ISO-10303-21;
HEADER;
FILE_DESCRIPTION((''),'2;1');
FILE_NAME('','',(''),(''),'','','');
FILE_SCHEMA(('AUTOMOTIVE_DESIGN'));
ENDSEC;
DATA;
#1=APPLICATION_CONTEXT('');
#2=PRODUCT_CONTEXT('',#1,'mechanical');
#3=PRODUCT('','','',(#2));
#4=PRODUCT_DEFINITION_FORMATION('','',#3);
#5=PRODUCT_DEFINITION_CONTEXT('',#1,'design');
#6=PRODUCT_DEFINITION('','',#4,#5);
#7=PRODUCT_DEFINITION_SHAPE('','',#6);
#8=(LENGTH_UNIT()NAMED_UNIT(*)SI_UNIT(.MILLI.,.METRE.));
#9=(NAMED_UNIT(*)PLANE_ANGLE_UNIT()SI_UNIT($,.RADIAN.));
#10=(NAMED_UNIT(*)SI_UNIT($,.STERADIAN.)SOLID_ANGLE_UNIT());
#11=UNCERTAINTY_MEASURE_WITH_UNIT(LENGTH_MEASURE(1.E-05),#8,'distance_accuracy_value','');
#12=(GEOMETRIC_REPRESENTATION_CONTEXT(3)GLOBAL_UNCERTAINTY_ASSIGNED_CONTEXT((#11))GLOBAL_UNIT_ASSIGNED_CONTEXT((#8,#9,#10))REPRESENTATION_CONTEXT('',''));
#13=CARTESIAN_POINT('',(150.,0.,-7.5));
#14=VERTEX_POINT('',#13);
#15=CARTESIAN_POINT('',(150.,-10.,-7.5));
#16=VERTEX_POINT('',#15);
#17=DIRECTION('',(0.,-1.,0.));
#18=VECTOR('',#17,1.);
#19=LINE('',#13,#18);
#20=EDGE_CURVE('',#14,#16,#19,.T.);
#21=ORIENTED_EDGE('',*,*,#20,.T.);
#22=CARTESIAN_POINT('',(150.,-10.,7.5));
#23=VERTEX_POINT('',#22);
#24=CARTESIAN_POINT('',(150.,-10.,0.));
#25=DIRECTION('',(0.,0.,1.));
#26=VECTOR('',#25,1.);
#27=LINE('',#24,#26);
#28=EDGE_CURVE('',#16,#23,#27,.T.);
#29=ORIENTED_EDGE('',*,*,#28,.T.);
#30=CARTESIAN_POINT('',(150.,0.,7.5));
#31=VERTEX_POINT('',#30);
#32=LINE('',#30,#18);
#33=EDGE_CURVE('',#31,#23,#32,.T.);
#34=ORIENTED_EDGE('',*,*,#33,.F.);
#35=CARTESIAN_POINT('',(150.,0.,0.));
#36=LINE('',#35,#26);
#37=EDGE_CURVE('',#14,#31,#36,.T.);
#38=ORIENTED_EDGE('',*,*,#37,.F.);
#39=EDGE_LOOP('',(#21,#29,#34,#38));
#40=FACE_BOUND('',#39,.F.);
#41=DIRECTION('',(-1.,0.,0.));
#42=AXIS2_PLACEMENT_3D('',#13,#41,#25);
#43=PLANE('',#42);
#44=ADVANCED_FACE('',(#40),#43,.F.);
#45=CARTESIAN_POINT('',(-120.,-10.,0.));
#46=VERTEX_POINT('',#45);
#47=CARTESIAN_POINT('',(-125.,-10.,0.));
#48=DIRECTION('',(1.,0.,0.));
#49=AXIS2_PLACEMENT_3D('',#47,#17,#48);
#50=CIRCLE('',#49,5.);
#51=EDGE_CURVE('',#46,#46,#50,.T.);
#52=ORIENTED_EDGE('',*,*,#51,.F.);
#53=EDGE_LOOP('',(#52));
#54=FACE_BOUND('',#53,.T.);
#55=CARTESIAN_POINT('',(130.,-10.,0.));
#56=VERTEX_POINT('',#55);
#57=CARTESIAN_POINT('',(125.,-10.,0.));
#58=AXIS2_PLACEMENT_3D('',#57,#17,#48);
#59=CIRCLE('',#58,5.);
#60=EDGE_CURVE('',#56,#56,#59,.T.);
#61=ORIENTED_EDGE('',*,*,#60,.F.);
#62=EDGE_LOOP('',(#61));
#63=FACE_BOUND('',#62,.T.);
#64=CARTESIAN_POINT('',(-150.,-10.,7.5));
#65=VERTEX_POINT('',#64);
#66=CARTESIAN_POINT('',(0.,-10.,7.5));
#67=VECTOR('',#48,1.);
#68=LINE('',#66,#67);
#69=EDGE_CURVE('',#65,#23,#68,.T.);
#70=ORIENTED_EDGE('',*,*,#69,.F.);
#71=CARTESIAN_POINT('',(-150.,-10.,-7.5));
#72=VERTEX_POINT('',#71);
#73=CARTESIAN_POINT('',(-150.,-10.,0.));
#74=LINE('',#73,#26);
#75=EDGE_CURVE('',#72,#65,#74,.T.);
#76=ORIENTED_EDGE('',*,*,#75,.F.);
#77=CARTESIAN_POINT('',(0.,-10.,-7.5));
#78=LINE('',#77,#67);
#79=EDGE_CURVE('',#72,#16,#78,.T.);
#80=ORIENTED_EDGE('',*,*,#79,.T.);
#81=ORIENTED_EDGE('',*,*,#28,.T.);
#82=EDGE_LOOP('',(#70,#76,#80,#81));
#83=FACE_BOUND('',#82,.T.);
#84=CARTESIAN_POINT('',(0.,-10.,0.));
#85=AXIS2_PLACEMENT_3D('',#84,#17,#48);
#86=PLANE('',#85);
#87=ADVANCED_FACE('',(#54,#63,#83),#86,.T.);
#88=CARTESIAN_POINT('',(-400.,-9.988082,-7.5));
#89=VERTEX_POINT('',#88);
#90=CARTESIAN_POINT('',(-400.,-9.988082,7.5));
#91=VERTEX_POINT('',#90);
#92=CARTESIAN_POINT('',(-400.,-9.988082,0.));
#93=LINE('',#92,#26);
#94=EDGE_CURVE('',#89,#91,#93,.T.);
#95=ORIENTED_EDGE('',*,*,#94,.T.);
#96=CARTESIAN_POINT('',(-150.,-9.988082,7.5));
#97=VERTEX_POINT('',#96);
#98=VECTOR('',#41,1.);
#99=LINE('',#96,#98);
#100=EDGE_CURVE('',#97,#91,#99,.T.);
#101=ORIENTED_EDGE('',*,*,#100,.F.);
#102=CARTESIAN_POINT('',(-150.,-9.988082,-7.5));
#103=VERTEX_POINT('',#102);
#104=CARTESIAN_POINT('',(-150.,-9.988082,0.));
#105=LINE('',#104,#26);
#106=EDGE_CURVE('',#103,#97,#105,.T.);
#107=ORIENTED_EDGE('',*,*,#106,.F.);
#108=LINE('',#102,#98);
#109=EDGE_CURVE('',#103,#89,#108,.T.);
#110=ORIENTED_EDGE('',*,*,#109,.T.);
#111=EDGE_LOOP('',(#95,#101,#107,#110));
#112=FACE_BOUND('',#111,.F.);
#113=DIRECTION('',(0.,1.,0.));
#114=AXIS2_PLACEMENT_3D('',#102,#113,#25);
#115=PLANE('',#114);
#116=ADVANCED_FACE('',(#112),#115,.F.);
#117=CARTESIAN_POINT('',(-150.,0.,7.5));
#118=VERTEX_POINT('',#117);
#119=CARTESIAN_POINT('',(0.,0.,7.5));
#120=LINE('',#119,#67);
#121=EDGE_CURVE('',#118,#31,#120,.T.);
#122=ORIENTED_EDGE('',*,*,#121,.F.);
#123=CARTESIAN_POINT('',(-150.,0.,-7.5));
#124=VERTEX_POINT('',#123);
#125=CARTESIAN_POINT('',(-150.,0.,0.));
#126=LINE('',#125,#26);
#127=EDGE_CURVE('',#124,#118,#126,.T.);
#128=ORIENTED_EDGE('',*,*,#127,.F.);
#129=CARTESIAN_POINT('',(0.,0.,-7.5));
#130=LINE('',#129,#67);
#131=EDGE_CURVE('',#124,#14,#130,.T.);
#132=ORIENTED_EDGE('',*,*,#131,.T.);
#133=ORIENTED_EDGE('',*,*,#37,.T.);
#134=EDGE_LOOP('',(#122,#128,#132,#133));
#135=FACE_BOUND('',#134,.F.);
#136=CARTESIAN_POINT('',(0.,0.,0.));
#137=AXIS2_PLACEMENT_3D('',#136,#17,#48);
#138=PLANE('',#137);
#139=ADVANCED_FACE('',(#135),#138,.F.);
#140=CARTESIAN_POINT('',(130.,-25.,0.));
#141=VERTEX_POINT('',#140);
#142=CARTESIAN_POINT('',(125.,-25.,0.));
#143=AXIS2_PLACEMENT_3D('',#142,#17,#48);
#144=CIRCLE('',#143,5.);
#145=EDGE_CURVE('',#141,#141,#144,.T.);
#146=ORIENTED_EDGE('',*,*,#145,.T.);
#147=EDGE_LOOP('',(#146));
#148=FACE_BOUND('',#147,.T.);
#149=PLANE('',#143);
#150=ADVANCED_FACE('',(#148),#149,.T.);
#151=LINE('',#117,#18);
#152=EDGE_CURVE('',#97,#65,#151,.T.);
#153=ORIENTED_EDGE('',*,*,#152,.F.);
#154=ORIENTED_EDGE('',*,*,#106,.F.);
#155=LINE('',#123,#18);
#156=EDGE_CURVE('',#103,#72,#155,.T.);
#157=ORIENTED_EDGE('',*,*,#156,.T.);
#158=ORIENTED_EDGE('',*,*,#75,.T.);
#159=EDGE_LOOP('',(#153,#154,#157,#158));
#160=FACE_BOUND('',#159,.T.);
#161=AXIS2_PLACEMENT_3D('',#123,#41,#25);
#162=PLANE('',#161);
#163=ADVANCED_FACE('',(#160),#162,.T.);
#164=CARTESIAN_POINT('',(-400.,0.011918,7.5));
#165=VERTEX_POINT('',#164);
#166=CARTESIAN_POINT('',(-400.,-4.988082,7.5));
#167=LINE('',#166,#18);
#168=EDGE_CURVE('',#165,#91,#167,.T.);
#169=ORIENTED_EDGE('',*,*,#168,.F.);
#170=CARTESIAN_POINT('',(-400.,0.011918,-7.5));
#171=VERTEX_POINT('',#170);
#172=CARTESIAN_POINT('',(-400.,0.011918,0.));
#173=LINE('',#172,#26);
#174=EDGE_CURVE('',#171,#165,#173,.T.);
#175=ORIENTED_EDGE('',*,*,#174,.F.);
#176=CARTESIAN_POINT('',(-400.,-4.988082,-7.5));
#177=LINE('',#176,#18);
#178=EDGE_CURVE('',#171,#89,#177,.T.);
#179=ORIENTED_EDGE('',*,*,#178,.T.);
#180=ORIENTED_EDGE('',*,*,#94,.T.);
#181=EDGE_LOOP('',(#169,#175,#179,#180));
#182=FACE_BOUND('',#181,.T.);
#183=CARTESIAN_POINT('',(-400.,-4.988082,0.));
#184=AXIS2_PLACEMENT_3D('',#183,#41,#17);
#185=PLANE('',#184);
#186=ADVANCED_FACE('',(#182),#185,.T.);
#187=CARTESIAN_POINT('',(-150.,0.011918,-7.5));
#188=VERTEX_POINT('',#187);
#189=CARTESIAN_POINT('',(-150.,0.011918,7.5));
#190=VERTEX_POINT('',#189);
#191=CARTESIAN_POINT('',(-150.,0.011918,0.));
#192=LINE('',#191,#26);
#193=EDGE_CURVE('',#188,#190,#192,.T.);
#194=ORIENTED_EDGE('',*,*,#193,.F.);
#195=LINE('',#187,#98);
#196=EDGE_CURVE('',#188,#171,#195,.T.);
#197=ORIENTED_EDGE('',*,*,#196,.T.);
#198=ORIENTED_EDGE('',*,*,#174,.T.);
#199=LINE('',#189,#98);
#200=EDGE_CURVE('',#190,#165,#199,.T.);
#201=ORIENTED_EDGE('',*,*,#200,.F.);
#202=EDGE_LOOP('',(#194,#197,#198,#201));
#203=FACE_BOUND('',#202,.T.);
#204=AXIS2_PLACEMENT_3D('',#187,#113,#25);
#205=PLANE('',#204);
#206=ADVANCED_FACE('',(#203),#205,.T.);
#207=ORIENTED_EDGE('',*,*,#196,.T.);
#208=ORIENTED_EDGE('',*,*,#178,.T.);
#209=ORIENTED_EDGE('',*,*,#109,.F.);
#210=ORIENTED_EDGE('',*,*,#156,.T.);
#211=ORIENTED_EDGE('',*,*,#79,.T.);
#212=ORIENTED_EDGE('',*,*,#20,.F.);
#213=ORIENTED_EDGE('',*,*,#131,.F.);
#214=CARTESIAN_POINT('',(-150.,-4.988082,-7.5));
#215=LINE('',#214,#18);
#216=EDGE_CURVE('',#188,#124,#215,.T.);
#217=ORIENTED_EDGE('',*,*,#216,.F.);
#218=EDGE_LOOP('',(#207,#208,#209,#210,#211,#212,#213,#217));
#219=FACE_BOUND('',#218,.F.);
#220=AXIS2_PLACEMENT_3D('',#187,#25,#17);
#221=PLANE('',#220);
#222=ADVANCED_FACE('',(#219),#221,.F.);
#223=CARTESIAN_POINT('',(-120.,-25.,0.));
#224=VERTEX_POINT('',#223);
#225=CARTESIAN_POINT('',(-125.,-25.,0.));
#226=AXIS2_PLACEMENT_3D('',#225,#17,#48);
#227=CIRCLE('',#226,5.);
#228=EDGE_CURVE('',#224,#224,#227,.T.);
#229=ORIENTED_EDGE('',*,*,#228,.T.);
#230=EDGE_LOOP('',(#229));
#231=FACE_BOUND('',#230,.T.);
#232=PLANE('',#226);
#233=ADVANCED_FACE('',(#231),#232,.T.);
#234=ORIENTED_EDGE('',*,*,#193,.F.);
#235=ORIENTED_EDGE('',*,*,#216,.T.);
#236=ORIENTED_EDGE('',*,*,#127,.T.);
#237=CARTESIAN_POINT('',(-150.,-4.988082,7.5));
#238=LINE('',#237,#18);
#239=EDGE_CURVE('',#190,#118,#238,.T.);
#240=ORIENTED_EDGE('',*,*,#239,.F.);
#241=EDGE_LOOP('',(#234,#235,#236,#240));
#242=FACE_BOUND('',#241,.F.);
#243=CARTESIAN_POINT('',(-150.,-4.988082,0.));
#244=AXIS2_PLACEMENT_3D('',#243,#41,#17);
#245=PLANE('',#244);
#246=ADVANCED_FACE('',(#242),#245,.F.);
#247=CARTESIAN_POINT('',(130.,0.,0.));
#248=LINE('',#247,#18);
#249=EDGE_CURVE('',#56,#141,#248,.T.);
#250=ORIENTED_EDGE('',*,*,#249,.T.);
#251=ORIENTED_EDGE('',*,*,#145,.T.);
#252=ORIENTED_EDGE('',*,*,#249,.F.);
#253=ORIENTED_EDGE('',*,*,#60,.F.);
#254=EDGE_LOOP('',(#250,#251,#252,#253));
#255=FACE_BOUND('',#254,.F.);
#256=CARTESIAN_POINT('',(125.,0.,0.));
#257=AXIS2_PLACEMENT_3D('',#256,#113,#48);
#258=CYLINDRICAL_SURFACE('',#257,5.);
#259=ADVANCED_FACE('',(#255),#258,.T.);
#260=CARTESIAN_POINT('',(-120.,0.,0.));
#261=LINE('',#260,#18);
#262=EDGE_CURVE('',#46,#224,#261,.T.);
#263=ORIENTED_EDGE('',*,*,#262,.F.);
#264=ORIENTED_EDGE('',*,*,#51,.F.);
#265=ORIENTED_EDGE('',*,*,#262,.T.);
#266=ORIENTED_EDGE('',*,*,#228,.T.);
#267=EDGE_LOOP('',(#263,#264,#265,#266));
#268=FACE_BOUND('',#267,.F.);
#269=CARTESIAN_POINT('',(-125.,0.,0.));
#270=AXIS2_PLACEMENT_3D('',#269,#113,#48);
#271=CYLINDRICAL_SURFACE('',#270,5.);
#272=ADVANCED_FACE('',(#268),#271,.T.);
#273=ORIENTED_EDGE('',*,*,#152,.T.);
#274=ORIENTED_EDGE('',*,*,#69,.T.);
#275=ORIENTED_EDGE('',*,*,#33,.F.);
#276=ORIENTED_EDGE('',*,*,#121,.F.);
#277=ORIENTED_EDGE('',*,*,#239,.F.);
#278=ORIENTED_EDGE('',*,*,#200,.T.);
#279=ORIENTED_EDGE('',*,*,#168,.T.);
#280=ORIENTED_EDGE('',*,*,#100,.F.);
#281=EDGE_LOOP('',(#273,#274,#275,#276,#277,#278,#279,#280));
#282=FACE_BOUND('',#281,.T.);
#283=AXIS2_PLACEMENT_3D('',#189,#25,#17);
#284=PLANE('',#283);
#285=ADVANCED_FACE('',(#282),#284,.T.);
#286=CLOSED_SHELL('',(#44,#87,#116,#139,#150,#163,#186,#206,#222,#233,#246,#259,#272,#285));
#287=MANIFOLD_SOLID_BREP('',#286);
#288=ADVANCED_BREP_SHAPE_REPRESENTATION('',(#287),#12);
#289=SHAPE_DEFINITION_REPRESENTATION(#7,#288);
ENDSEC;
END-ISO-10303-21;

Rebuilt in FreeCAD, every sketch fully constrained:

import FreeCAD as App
import Part
import Sketcher

V = App.Vector

doc = App.newDocument("Part")
body = doc.addObject("PartDesign::Body", "Body")

sketch1 = body.newObject("Sketcher::SketchObject", "Sketch")
sketch1.AttachmentSupport = (doc.getObject("XZ_Plane"), [""])
sketch1.MapMode = "FlatFace"
sketch1.addGeometry([
    Part.LineSegment(V(-150, 7.5, 0), V(-150, -7.5, 0)),
    Part.LineSegment(V(-150, -7.5, 0), V(150, -7.5, 0)),
    Part.LineSegment(V(150, -7.5, 0), V(150, 7.5, 0)),
    Part.LineSegment(V(150, 7.5, 0), V(-150, 7.5, 0)),
    Part.Circle(V(-125, 0, 0), V(0, 0, 1), 5),
    Part.Circle(V(125, 0, 0), V(0, 0, 1), 5),
], False)
sketch1.addConstraint([
    Sketcher.Constraint("Coincident", 0, 2, 1, 1),
    Sketcher.Constraint("Coincident", 1, 2, 2, 1),
    Sketcher.Constraint("Coincident", 2, 2, 3, 1),
    Sketcher.Constraint("Coincident", 3, 2, 0, 1),
    Sketcher.Constraint("Vertical", 0),
    Sketcher.Constraint("Horizontal", 1),
    Sketcher.Constraint("Vertical", 2),
    Sketcher.Constraint("Horizontal", 3),
    Sketcher.Constraint("Equal", 4, 5),
    Sketcher.Constraint("Symmetric", 4, 3, 5, 3, -1, 1),
    Sketcher.Constraint("Symmetric", 0, 2, 2, 2, -1, 1),
    Sketcher.Constraint("PointOnObject", 4, 3, -1),
    Sketcher.Constraint("Diameter", 4, 10.0),
    Sketcher.Constraint("DistanceX", 1, 1, 1, 2, 300.0),
    Sketcher.Constraint("DistanceY", 0, 2, 0, 1, 15.0),
    Sketcher.Constraint("DistanceX", 4, 3, -1, 1, 125.0),
])
pad1 = body.newObject("PartDesign::Pad", "Pad")
pad1.Profile = sketch1
pad1.Length = 10

sketch2 = body.newObject("Sketcher::SketchObject", "Sketch001")
sketch2.AttachmentSupport = (doc.getObject("XZ_Plane"), [""])
sketch2.MapMode = "FlatFace"
sketch2.addGeometry([
    Part.Circle(V(-125, 0, 0), V(0, 0, 1), 5),
    Part.Circle(V(125, 0, 0), V(0, 0, 1), 5),
], False)
sketch2.addConstraint([
    Sketcher.Constraint("Equal", 0, 1),
    Sketcher.Constraint("Symmetric", 0, 3, 1, 3, -1, 1),
    Sketcher.Constraint("PointOnObject", 0, 3, -1),
    Sketcher.Constraint("Diameter", 0, 10.0),
    Sketcher.Constraint("DistanceX", 0, 3, -1, 1, 125.0),
])
pad2 = body.newObject("PartDesign::Pad", "Pad001")
pad2.Profile = sketch2
pad2.Length = 25

sketch3 = body.newObject("Sketcher::SketchObject", "Sketch002")
sketch3.AttachmentSupport = (doc.getObject("YZ_Plane"), [""])
sketch3.MapMode = "FlatFace"
sketch3.AttachmentOffset = App.Placement(V(0, 0, -150), App.Rotation())
sketch3.addGeometry([
    Part.LineSegment(V(0.011918, 7.5, 0), V(0.011918, -7.5, 0)),
    Part.LineSegment(V(0.011918, -7.5, 0), V(-9.988082, -7.5, 0)),
    Part.LineSegment(V(-9.988082, -7.5, 0), V(-9.988082, 7.5, 0)),
    Part.LineSegment(V(-9.988082, 7.5, 0), V(0.011918, 7.5, 0)),
], False)
sketch3.addConstraint([
    Sketcher.Constraint("Coincident", 0, 2, 1, 1),
    Sketcher.Constraint("Coincident", 1, 2, 2, 1),
    Sketcher.Constraint("Coincident", 2, 2, 3, 1),
    Sketcher.Constraint("Coincident", 3, 2, 0, 1),
    Sketcher.Constraint("Vertical", 0),
    Sketcher.Constraint("Horizontal", 1),
    Sketcher.Constraint("Vertical", 2),
    Sketcher.Constraint("Horizontal", 3),
    Sketcher.Constraint("DistanceX", 1, 2, 1, 1, 10.0),
    Sketcher.Constraint("DistanceY", 0, 2, 0, 1, 15.0),
    Sketcher.Constraint("DistanceY", 0, 2, -1, 1, 7.5),
    Sketcher.Constraint("DistanceX", -1, 1, 0, 2, 0.011918),
])
pad3 = body.newObject("PartDesign::Pad", "Pad002")
pad3.Profile = sketch3
pad3.Length = 250
pad3.Reversed = True

doc.recompute()
